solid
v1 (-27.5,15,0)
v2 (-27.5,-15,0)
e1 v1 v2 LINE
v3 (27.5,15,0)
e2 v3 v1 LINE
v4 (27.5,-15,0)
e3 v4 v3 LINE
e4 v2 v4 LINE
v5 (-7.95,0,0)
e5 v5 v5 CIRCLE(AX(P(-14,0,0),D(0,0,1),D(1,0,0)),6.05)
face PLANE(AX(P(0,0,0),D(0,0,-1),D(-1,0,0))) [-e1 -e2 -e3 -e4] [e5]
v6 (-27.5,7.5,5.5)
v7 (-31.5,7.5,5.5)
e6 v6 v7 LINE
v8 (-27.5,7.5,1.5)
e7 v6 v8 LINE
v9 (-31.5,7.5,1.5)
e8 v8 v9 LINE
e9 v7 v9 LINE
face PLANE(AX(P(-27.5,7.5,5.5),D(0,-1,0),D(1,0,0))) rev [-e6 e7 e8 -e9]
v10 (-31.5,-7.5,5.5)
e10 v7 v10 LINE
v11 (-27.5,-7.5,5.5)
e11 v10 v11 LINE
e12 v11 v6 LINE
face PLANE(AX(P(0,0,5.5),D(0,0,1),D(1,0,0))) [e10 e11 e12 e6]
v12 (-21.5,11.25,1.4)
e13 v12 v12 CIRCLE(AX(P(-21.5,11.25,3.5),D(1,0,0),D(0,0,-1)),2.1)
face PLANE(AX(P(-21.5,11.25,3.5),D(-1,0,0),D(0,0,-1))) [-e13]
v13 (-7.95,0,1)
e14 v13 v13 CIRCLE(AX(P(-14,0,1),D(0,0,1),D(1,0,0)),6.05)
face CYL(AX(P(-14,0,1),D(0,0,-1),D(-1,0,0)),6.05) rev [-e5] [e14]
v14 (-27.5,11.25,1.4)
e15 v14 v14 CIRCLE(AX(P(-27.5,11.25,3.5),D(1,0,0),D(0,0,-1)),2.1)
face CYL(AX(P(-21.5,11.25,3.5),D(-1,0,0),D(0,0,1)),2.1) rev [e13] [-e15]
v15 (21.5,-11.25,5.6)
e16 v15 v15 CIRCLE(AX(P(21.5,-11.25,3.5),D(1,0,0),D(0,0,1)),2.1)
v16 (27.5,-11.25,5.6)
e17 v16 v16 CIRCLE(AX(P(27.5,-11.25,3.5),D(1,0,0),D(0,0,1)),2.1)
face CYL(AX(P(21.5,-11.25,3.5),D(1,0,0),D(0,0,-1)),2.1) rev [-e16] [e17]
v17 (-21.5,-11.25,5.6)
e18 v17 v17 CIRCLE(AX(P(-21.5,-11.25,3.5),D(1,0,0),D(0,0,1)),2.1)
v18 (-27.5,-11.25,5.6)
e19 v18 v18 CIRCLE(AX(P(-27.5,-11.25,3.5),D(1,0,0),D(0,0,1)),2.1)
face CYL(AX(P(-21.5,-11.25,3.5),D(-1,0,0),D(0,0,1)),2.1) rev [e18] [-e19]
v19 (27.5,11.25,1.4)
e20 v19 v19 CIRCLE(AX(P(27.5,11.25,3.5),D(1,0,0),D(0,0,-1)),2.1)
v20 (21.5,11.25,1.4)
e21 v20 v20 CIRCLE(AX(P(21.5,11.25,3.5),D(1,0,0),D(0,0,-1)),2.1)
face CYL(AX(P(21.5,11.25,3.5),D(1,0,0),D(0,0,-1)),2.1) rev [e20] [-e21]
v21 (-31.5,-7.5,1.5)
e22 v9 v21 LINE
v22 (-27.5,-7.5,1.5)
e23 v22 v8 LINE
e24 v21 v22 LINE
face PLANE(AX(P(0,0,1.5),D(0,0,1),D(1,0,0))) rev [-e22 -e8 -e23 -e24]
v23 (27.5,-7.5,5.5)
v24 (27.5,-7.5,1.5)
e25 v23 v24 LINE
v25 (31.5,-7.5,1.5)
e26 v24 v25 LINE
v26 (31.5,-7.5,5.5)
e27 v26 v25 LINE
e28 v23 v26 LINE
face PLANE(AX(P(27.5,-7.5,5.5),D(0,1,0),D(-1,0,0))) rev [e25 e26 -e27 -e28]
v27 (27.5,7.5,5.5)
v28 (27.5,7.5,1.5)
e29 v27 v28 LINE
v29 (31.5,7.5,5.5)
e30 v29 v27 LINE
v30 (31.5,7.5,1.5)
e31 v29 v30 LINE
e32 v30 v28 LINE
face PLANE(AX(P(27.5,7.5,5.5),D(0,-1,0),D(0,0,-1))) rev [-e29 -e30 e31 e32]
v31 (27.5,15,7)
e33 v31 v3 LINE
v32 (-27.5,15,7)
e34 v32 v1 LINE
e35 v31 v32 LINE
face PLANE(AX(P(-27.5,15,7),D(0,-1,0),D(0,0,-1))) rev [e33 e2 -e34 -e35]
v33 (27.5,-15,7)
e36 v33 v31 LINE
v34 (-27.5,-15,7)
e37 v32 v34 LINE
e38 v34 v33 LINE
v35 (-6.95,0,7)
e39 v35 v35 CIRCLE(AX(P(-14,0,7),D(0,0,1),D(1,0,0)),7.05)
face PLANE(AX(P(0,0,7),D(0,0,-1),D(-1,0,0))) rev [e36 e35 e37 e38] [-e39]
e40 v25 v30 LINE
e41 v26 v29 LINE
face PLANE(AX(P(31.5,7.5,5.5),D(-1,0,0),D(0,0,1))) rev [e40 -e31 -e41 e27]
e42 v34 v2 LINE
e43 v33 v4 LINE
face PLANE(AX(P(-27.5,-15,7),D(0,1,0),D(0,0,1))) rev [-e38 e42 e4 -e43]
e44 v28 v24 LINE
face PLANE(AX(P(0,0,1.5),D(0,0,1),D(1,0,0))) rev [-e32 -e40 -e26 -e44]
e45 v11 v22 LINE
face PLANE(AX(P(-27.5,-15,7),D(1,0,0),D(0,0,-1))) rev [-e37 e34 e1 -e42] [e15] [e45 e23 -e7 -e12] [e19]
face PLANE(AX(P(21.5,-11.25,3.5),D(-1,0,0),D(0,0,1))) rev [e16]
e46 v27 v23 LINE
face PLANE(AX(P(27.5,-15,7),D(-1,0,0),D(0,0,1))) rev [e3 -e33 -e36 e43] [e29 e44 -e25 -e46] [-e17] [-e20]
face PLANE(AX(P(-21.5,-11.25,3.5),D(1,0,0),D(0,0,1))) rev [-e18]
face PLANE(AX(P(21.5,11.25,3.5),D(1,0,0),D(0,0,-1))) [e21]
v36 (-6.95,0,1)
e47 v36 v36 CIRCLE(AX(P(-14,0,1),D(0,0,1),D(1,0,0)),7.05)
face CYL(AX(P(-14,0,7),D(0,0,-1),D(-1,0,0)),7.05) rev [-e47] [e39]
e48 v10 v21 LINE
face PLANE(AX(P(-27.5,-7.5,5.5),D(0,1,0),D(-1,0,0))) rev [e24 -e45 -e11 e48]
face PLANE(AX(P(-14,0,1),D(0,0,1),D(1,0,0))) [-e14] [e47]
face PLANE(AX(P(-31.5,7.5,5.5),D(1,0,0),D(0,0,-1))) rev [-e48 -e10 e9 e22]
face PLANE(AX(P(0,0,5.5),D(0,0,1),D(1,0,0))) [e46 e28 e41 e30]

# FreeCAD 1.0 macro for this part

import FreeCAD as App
import Part
import Sketcher
from FreeCAD import Vector
Q = App.Units.Quantity


def add_polygon(sketch, points):
    """Adds a closed chain of lines whose ends are joined by coincident constraints."""
    first, n = sketch.GeometryCount, len(points)
    for a, b in zip(points, points[1:] + points[:1]):
        sketch.addGeometry(Part.LineSegment(App.Vector(*a, 0), App.Vector(*b, 0)), False)
    for i in range(n):
        sketch.addConstraint(Sketcher.Constraint("Coincident", first + i, 2, first + (i + 1) % n, 1))

doc = App.newDocument("Part")
body = doc.addObject("PartDesign::Body", "Body")

# Sketch on XY plane
sketch1 = doc.addObject("Sketcher::SketchObject", "Sketch")
body.addObject(sketch1)
sketch1.AttachmentSupport = (doc.XY_Plane, [""])
sketch1.MapMode = "FlatFace"
add_polygon(sketch1, [(-28, 15), (-28, -15), (28, -15), (28, 15)])  # lines 0-3
sketch1.addGeometry(Part.Circle(Vector(-14, 0, 0), Vector(0, 0, 1), 7), False)  # 4
sketch1.addConstraint(Sketcher.Constraint("Vertical", 0))
sketch1.addConstraint(Sketcher.Constraint("Horizontal", 1))
sketch1.addConstraint(Sketcher.Constraint("Vertical", 2))
sketch1.addConstraint(Sketcher.Constraint("Horizontal", 3))
sketch1.addConstraint(Sketcher.Constraint("Symmetric", 0, 2, 2, 2, -1, 1))
sketch1.addConstraint(Sketcher.Constraint("PointOnObject", 4, 3, -1))
sketch1.addConstraint(Sketcher.Constraint("Diameter", 4, Q("14.1 mm")))
sketch1.addConstraint(Sketcher.Constraint("DistanceX", 1, 1, 1, 2, Q("55 mm")))
sketch1.addConstraint(Sketcher.Constraint("DistanceY", 0, 2, 0, 1, Q("30 mm")))
sketch1.addConstraint(Sketcher.Constraint("DistanceX", 4, 3, -1, 1, Q("14 mm")))
pad1 = doc.addObject("PartDesign::Pad", "Pad")
body.addObject(pad1)
pad1.Profile = sketch1
pad1.Length = 7

# Sketch on XY plane
sketch2 = doc.addObject("Sketcher::SketchObject", "Sketch001")
body.addObject(sketch2)
sketch2.AttachmentSupport = (doc.XY_Plane, [""])
sketch2.MapMode = "FlatFace"
sketch2.addGeometry(Part.Circle(Vector(-14, 0, 0), Vector(0, 0, 1), 7), False)
sketch2.addGeometry(Part.Circle(Vector(-14, 0, 0), Vector(0, 0, 1), 6), False)
sketch2.addConstraint(Sketcher.Constraint("Coincident", 1, 3, 0, 3))
sketch2.addConstraint(Sketcher.Constraint("PointOnObject", 0, 3, -1))
sketch2.addConstraint(Sketcher.Constraint("Diameter", 0, Q("14.1 mm")))
sketch2.addConstraint(Sketcher.Constraint("Diameter", 1, Q("12.1 mm")))
sketch2.addConstraint(Sketcher.Constraint("DistanceX", 0, 3, -1, 1, Q("14 mm")))
pad2 = doc.addObject("PartDesign::Pad", "Pad001")
body.addObject(pad2)
pad2.Profile = sketch2
pad2.Length = 1

# Sketch on XY plane
sketch3 = doc.addObject("Sketcher::SketchObject", "Sketch002")
body.addObject(sketch3)
sketch3.AttachmentSupport = (doc.XY_Plane, [""])
sketch3.MapMode = "FlatFace"
sketch3.AttachmentOffset = App.Placement(Vector(0, 0, 1.5), App.Rotation())
add_polygon(sketch3, [(27.5, 7.5), (27.5, -7.5), (31.5, -7.5), (31.5, 7.5)])  # lines 0-3
add_polygon(sketch3, [(-31.5, 7.5), (-31.5, -7.5), (-27.5, -7.5), (-27.5, 7.5)])  # lines 4-7
sketch3.addConstraint(Sketcher.Constraint("Vertical", 0))
sketch3.addConstraint(Sketcher.Constraint("Horizontal", 1))
sketch3.addConstraint(Sketcher.Constraint("Vertical", 2))
sketch3.addConstraint(Sketcher.Constraint("Horizontal", 3))
sketch3.addConstraint(Sketcher.Constraint("Vertical", 4))
sketch3.addConstraint(Sketcher.Constraint("Horizontal", 5))
sketch3.addConstraint(Sketcher.Constraint("Vertical", 6))
sketch3.addConstraint(Sketcher.Constraint("Horizontal", 7))
sketch3.addConstraint(Sketcher.Constraint("Symmetric", 2, 2, 4, 2, -1, 1))
sketch3.addConstraint(Sketcher.Constraint("Symmetric", 0, 2, 6, 2, -1, 1))
sketch3.addConstraint(Sketcher.Constraint("Horizontal", 1, 2, 4, 2))
sketch3.addConstraint(Sketcher.Constraint("DistanceX", 1, 1, 1, 2, Q("4 mm")))
sketch3.addConstraint(Sketcher.Constraint("DistanceY", 0, 2, 0, 1, Q("15 mm")))
sketch3.addConstraint(Sketcher.Constraint("DistanceX", 4, 2, 0, 2, Q("59 mm")))
pad3 = doc.addObject("PartDesign::Pad", "Pad002")
body.addObject(pad3)
pad3.Profile = sketch3
pad3.Length = 4

# Sketch on YZ plane
sketch4 = doc.addObject("Sketcher::SketchObject", "Sketch003")
body.addObject(sketch4)
sketch4.AttachmentSupport = (doc.YZ_Plane, [""])
sketch4.MapMode = "FlatFace"
sketch4.AttachmentOffset = App.Placement(Vector(0, 0, 27.5), App.Rotation())
sketch4.addGeometry(Part.Circle(Vector(11.2, 3.5, 0), Vector(0, 0, 1), 2.1), False)
sketch4.addGeometry(Part.Circle(Vector(-11.2, 3.5, 0), Vector(0, 0, 1), 2.1), False)
sketch4.addConstraint(Sketcher.Constraint("Equal", 0, 1))
sketch4.addConstraint(Sketcher.Constraint("Symmetric", 0, 3, 1, 3, -2))
sketch4.addConstraint(Sketcher.Constraint("Diameter", 0, Q("4.2 mm")))
sketch4.addConstraint(Sketcher.Constraint("DistanceY", -1, 1, 0, 3, Q("3.5 mm")))
sketch4.addConstraint(Sketcher.Constraint("DistanceX", 1, 3, 0, 3, Q("22.5 mm")))
pocket1 = doc.addObject("PartDesign::Pocket", "Pocket")
body.addObject(pocket1)
pocket1.Profile = sketch4
pocket1.Length = 6
doc.recompute()

mirrored = doc.addObject("PartDesign::Mirrored", "Mirrored")
body.addObject(mirrored)
mirrored.Originals = [pocket1]
mirrored.MirrorPlane = (doc.YZ_Plane, [""])
body.Tip = mirrored

doc.recompute()
